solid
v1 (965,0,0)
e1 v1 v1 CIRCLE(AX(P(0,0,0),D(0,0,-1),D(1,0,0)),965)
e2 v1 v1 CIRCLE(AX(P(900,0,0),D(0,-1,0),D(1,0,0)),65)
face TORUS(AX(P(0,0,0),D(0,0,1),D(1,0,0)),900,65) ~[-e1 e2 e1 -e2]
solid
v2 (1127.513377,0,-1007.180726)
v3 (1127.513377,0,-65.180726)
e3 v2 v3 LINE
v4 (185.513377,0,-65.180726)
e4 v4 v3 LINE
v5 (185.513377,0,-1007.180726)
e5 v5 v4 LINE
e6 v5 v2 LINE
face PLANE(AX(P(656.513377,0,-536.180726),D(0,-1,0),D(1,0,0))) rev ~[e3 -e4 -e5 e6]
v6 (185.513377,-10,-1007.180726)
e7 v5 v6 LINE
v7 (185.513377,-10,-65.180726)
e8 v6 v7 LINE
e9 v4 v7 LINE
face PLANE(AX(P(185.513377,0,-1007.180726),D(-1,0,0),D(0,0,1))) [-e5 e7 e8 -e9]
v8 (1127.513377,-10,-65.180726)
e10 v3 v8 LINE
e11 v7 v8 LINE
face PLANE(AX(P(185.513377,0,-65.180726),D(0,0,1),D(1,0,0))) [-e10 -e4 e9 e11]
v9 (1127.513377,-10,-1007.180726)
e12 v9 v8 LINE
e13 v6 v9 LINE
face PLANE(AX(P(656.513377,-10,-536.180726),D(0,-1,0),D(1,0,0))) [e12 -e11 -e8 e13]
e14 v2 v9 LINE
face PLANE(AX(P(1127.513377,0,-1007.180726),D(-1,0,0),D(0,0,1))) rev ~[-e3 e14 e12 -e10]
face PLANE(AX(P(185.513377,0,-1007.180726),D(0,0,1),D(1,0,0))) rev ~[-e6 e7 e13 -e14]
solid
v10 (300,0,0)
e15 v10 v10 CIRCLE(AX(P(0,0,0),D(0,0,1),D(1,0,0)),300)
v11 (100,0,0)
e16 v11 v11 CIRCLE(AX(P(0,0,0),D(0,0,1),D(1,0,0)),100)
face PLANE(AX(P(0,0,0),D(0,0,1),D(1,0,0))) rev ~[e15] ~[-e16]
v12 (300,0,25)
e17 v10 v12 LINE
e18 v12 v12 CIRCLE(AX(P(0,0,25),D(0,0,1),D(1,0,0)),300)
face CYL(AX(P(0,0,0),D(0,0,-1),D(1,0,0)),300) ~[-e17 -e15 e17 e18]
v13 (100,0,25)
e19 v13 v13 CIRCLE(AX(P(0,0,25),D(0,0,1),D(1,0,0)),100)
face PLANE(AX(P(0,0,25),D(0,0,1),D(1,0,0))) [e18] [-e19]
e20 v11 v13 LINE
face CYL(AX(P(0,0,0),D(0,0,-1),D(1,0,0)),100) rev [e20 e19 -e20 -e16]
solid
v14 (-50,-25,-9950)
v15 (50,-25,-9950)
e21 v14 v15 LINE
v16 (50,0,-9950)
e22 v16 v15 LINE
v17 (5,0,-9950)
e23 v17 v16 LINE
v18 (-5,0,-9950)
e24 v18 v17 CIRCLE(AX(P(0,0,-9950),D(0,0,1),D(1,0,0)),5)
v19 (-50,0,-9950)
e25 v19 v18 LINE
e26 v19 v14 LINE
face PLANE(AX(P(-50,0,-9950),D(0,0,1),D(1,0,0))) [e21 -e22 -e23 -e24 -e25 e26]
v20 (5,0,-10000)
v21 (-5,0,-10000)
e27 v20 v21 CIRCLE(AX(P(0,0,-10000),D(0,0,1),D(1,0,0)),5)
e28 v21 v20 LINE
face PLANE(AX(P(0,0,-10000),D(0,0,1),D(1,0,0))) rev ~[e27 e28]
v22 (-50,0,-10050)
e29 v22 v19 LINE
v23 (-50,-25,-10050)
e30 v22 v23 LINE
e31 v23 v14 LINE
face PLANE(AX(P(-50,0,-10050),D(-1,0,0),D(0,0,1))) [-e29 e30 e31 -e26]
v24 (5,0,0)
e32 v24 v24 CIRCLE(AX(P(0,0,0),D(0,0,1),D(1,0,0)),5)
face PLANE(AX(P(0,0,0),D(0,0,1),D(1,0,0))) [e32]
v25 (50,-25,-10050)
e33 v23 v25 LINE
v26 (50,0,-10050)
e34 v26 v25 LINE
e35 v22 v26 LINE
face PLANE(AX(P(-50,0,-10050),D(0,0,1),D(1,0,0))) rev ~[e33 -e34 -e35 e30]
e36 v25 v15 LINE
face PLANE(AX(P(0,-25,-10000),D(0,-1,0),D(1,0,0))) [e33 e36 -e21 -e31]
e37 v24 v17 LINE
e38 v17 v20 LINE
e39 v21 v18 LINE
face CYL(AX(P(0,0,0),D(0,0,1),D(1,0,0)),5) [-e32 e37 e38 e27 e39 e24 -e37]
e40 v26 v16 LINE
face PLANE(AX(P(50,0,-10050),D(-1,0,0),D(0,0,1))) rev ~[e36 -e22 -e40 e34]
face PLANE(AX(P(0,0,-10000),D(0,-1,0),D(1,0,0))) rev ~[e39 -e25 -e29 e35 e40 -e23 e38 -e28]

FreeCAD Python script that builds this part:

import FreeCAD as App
import Part
import Sketcher
Q = App.Units.Quantity


def add_polygon(sketch, points):
    """Adds a closed chain of lines whose ends are joined by coincident constraints."""
    first, n = sketch.GeometryCount, len(points)
    for a, b in zip(points, points[1:] + points[:1]):
        sketch.addGeometry(Part.LineSegment(App.Vector(*a, 0), App.Vector(*b, 0)), False)
    for i in range(n):
        sketch.addConstraint(Sketcher.Constraint("Coincident", first + i, 2, first + (i + 1) % n, 1))

doc = App.newDocument("Part")
body = doc.addObject("PartDesign::Body", "Body")

sketch1 = doc.addObject("Sketcher::SketchObject", "Sketch")
body.addObject(sketch1)
sketch1.AttachmentSupport = (doc.XZ_Plane, [""])
sketch1.MapMode = "FlatFace"
sketch1.addGeometry(Part.Circle(App.Vector(900, 0, 0), App.Vector(0, 0, 1), 65), False)
sketch1.addConstraint([
    Sketcher.Constraint("PointOnObject", 0, 3, -1),
    Sketcher.Constraint("Diameter", 0, Q("130 mm")),
    Sketcher.Constraint("DistanceX", -1, 1, 0, 3, Q("900 mm")),
])
revolution = doc.addObject("PartDesign::Revolution", "Revolution")
body.addObject(revolution)
revolution.Profile = sketch1
revolution.ReferenceAxis = (sketch1, ["V_Axis"])
revolution.Angle = 360
body2 = doc.addObject("PartDesign::Body", "Body001")

sketch2 = doc.addObject("Sketcher::SketchObject", "Sketch001")
body2.addObject(sketch2)
sketch2.AttachmentSupport = (doc.getObject("XY_Plane001"), [""])
sketch2.MapMode = "FlatFace"
sketch2.addGeometry(Part.Circle(App.Vector(0, 0, 0), App.Vector(0, 0, 1), 5), False)
sketch2.addConstraint([
    Sketcher.Constraint("Coincident", 0, 3, -1, 1),
    Sketcher.Constraint("Diameter", 0, Q("10 mm")),
])
pad1 = doc.addObject("PartDesign::Pad", "Pad")
body2.addObject(pad1)
pad1.Profile = sketch2
pad1.Length = 10000
pad1.Reversed = True

sketch3 = doc.addObject("Sketcher::SketchObject", "Sketch002")
body2.addObject(sketch3)
sketch3.AttachmentSupport = (doc.getObject("XZ_Plane001"), [""])
sketch3.MapMode = "FlatFace"
add_polygon(sketch3, [(-50, -9950), (-50, -10050), (50, -10050), (50, -9950)])
sketch3.addConstraint([
    Sketcher.Constraint("Vertical", 0),
    Sketcher.Constraint("Horizontal", 1),
    Sketcher.Constraint("Vertical", 2),
    Sketcher.Constraint("Horizontal", 3),
    Sketcher.Constraint("Equal", 3, 0),
    Sketcher.Constraint("DistanceX", 1, 1, 1, 2, Q("100 mm")),
    Sketcher.Constraint("DistanceX", 0, 2, -1, 1, Q("50 mm")),
    Sketcher.Constraint("DistanceY", 0, 2, -1, 1, Q("10050 mm")),
])
pad2 = doc.addObject("PartDesign::Pad", "Pad001")
body2.addObject(pad2)
pad2.Profile = sketch3
pad2.Length = 25
body3 = doc.addObject("PartDesign::Body", "Body002")

sketch4 = doc.addObject("Sketcher::SketchObject", "Sketch003")
body3.addObject(sketch4)
sketch4.AttachmentSupport = (doc.getObject("XY_Plane002"), [""])
sketch4.MapMode = "FlatFace"
sketch4.addGeometry([
    Part.Circle(App.Vector(0, 0, 0), App.Vector(0, 0, 1), 300),
    Part.Circle(App.Vector(0, 0, 0), App.Vector(0, 0, 1), 100),
], False)
sketch4.addConstraint([
    Sketcher.Constraint("Coincident", 0, 3, -1, 1),
    Sketcher.Constraint("Coincident", 1, 3, -1, 1),
    Sketcher.Constraint("Diameter", 0, Q("600 mm")),
    Sketcher.Constraint("Diameter", 1, Q("200 mm")),
])
pad3 = doc.addObject("PartDesign::Pad", "Pad002")
body3.addObject(pad3)
pad3.Profile = sketch4
pad3.Length = 25
body4 = doc.addObject("PartDesign::Body", "Body003")

sketch5 = doc.addObject("Sketcher::SketchObject", "Sketch004")
body4.addObject(sketch5)
sketch5.AttachmentSupport = (doc.getObject("XZ_Plane003"), [""])
sketch5.MapMode = "FlatFace"
add_polygon(sketch5, [(185.513377, -65.180726), (185.513377, -1007.180726), (1127.513377, -1007.180726), (1127.513377, -65.180726)])
sketch5.addConstraint([
    Sketcher.Constraint("Vertical", 0),
    Sketcher.Constraint("Horizontal", 1),
    Sketcher.Constraint("Vertical", 2),
    Sketcher.Constraint("Horizontal", 3),
    Sketcher.Constraint("Equal", 3, 0),
    Sketcher.Constraint("DistanceX", 1, 1, 1, 2, Q("942 mm")),
    Sketcher.Constraint("DistanceX", -1, 1, 0, 2, Q("185.513377 mm")),
    Sketcher.Constraint("DistanceY", 0, 2, -1, 1, Q("1007.180726 mm")),
])
pad4 = doc.addObject("PartDesign::Pad", "Pad003")
body4.addObject(pad4)
pad4.Profile = sketch5
pad4.Length = 10

doc.recompute()
